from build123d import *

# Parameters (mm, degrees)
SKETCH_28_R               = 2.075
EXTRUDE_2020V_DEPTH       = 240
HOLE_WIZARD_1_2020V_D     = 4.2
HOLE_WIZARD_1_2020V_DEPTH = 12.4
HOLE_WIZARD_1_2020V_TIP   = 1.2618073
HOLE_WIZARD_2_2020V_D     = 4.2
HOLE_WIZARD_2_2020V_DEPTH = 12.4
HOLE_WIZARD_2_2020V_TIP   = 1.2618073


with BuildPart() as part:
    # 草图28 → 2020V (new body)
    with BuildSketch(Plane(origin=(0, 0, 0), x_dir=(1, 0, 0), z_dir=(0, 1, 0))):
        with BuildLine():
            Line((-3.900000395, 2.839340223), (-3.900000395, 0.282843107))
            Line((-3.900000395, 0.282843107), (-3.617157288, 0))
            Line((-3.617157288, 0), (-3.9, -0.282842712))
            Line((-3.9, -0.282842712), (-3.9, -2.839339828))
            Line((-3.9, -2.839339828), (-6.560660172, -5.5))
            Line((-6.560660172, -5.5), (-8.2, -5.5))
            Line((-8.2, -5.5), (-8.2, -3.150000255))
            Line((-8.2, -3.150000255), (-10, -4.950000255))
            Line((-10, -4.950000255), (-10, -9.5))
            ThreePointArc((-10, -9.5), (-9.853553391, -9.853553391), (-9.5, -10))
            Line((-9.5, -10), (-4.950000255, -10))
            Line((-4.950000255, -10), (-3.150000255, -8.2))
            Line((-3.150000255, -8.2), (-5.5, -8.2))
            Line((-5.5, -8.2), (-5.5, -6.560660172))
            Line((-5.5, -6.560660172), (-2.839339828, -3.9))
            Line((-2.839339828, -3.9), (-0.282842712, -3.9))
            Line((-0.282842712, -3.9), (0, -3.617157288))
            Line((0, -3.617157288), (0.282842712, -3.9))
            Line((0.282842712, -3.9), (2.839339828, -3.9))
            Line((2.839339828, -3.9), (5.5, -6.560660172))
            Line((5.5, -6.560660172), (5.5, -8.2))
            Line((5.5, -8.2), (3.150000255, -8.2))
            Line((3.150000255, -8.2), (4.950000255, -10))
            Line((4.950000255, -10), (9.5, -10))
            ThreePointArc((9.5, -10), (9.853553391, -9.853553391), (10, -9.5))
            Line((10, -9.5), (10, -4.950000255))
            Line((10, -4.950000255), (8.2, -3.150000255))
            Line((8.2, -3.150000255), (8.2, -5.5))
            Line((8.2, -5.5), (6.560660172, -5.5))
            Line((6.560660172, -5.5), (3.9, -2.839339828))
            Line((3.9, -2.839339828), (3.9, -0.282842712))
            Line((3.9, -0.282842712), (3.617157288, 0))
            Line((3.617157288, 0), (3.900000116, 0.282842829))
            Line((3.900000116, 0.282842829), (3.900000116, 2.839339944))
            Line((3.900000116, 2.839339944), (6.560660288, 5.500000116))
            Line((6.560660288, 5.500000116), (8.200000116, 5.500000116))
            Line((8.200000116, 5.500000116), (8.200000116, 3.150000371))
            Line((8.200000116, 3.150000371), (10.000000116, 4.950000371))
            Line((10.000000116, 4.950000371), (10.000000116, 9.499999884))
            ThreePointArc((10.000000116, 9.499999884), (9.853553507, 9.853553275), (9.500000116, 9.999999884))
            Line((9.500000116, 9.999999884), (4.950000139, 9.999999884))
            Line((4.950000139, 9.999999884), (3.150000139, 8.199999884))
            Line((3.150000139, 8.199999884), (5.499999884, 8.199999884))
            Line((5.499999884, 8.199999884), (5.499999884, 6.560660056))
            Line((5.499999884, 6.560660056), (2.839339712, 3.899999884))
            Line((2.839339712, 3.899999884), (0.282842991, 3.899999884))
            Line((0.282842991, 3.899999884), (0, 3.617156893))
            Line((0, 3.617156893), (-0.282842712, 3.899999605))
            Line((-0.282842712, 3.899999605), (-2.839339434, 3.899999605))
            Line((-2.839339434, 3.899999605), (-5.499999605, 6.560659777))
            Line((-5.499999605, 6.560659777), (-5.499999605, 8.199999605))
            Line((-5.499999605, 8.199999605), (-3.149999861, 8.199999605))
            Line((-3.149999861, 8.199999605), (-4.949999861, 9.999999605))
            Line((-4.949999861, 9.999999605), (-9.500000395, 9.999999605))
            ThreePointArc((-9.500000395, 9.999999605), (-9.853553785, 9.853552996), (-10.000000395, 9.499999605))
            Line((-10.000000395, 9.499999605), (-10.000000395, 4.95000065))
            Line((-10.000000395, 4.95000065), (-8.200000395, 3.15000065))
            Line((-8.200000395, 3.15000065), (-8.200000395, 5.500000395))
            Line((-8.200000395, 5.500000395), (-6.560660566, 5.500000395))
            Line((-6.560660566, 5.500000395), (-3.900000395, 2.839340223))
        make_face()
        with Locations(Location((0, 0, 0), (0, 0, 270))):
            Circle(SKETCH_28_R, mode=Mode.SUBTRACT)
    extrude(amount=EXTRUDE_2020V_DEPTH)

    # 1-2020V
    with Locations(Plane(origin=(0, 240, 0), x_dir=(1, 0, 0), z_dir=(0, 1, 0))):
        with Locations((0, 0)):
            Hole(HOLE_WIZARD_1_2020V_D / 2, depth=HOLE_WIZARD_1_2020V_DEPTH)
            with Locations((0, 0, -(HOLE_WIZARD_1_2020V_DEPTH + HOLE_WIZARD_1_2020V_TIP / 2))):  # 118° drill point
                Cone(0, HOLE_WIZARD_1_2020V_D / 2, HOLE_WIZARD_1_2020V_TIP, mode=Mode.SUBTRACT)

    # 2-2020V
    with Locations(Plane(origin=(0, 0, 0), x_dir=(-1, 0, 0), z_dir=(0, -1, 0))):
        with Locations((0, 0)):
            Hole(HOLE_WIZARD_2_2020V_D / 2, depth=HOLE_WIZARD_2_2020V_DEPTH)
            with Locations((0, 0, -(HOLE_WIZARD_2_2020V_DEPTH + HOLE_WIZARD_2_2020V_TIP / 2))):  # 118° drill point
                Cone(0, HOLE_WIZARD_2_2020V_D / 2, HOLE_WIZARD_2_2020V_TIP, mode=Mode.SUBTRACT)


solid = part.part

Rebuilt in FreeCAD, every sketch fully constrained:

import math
import FreeCAD as App
import Part
import Sketcher
Q = App.Units.Quantity

doc = App.newDocument("Part")
body = doc.addObject("PartDesign::Body", "Body")

# Sketch on XZ plane
sketch1 = body.newObject("Sketcher::SketchObject", "Sketch")
sketch1.AttachmentSupport = (doc.getObject("XZ_Plane"), [""])
sketch1.MapMode = "FlatFace"
sketch1.addGeometry(Part.LineSegment(App.Vector(-3.9, -2.83934, 0), App.Vector(-3.9, -0.282843, 0)), False)
sketch1.addGeometry(Part.LineSegment(App.Vector(-3.9, -0.282843, 0), App.Vector(-3.617157, 0, 0)), False)
sketch1.addGeometry(Part.LineSegment(App.Vector(-3.617157, 0, 0), App.Vector(-3.9, 0.282843, 0)), False)
sketch1.addGeometry(Part.LineSegment(App.Vector(-3.9, 0.282843, 0), App.Vector(-3.9, 2.83934, 0)), False)
sketch1.addGeometry(Part.LineSegment(App.Vector(-3.9, 2.83934, 0), App.Vector(-6.56066, 5.5, 0)), False)
sketch1.addGeometry(Part.LineSegment(App.Vector(-6.56066, 5.5, 0), App.Vector(-8.2, 5.5, 0)), False)
sketch1.addGeometry(Part.LineSegment(App.Vector(-8.2, 5.5, 0), App.Vector(-8.2, 3.15, 0)), False)
sketch1.addGeometry(Part.LineSegment(App.Vector(-8.2, 3.15, 0), App.Vector(-10, 4.95, 0)), False)
sketch1.addGeometry(Part.LineSegment(App.Vector(-10, 4.95, 0), App.Vector(-10, 9.5, 0)), False)
sketch1.addGeometry(Part.ArcOfCircle(Part.Circle(App.Vector(-9.5, 9.5, 0), App.Vector(0, 0, 1), 0.5), math.radians(90), math.radians(180)), False)
sketch1.addGeometry(Part.LineSegment(App.Vector(-9.5, 10, 0), App.Vector(-4.95, 10, 0)), False)
sketch1.addGeometry(Part.LineSegment(App.Vector(-4.95, 10, 0), App.Vector(-3.15, 8.2, 0)), False)
sketch1.addGeometry(Part.LineSegment(App.Vector(-3.15, 8.2, 0), App.Vector(-5.5, 8.2, 0)), False)
sketch1.addGeometry(Part.LineSegment(App.Vector(-5.5, 8.2, 0), App.Vector(-5.5, 6.56066, 0)), False)
sketch1.addGeometry(Part.LineSegment(App.Vector(-5.5, 6.56066, 0), App.Vector(-2.83934, 3.9, 0)), False)
sketch1.addGeometry(Part.LineSegment(App.Vector(-2.83934, 3.9, 0), App.Vector(-0.282843, 3.9, 0)), False)
sketch1.addGeometry(Part.LineSegment(App.Vector(-0.282843, 3.9, 0), App.Vector(0, 3.617157, 0)), False)
sketch1.addGeometry(Part.LineSegment(App.Vector(0, 3.617157, 0), App.Vector(0.282843, 3.9, 0)), False)
sketch1.addGeometry(Part.LineSegment(App.Vector(0.282843, 3.9, 0), App.Vector(2.83934, 3.9, 0)), False)
sketch1.addGeometry(Part.LineSegment(App.Vector(2.83934, 3.9, 0), App.Vector(5.5, 6.56066, 0)), False)
sketch1.addGeometry(Part.LineSegment(App.Vector(5.5, 6.56066, 0), App.Vector(5.5, 8.2, 0)), False)
sketch1.addGeometry(Part.LineSegment(App.Vector(5.5, 8.2, 0), App.Vector(3.15, 8.2, 0)), False)
sketch1.addGeometry(Part.LineSegment(App.Vector(3.15, 8.2, 0), App.Vector(4.95, 10, 0)), False)
sketch1.addGeometry(Part.LineSegment(App.Vector(4.95, 10, 0), App.Vector(9.5, 10, 0)), False)
sketch1.addGeometry(Part.ArcOfCircle(Part.Circle(App.Vector(9.5, 9.5, 0), App.Vector(0, 0, 1), 0.5), math.radians(0), math.radians(90)), False)
sketch1.addGeometry(Part.LineSegment(App.Vector(10, 9.5, 0), App.Vector(10, 4.95, 0)), False)
sketch1.addGeometry(Part.LineSegment(App.Vector(10, 4.95, 0), App.Vector(8.2, 3.15, 0)), False)
sketch1.addGeometry(Part.LineSegment(App.Vector(8.2, 3.15, 0), App.Vector(8.2, 5.5, 0)), False)
sketch1.addGeometry(Part.LineSegment(App.Vector(8.2, 5.5, 0), App.Vector(6.56066, 5.5, 0)), False)
sketch1.addGeometry(Part.LineSegment(App.Vector(6.56066, 5.5, 0), App.Vector(3.9, 2.83934, 0)), False)
sketch1.addGeometry(Part.LineSegment(App.Vector(3.9, 2.83934, 0), App.Vector(3.9, 0.282843, 0)), False)
sketch1.addGeometry(Part.LineSegment(App.Vector(3.9, 0.282843, 0), App.Vector(3.617157, 0, 0)), False)
sketch1.addGeometry(Part.LineSegment(App.Vector(3.617157, 0, 0), App.Vector(3.9, -0.282843, 0)), False)
sketch1.addGeometry(Part.LineSegment(App.Vector(3.9, -0.282843, 0), App.Vector(3.9, -2.83934, 0)), False)
sketch1.addGeometry(Part.LineSegment(App.Vector(3.9, -2.83934, 0), App.Vector(6.56066, -5.5, 0)), False)
sketch1.addGeometry(Part.LineSegment(App.Vector(6.56066, -5.5, 0), App.Vector(8.2, -5.5, 0)), False)
sketch1.addGeometry(Part.LineSegment(App.Vector(8.2, -5.5, 0), App.Vector(8.2, -3.15, 0)), False)
sketch1.addGeometry(Part.LineSegment(App.Vector(8.2, -3.15, 0), App.Vector(10, -4.95, 0)), False)
sketch1.addGeometry(Part.LineSegment(App.Vector(10, -4.95, 0), App.Vector(10, -9.5, 0)), False)
sketch1.addGeometry(Part.ArcOfCircle(Part.Circle(App.Vector(9.5, -9.5, 0), App.Vector(0, 0, 1), 0.5), math.radians(-90), math.radians(0)), False)
sketch1.addGeometry(Part.LineSegment(App.Vector(9.5, -10, 0), App.Vector(4.95, -10, 0)), False)
sketch1.addGeometry(Part.LineSegment(App.Vector(4.95, -10, 0), App.Vector(3.15, -8.2, 0)), False)
sketch1.addGeometry(Part.LineSegment(App.Vector(3.15, -8.2, 0), App.Vector(5.5, -8.2, 0)), False)
sketch1.addGeometry(Part.LineSegment(App.Vector(5.5, -8.2, 0), App.Vector(5.5, -6.56066, 0)), False)
sketch1.addGeometry(Part.LineSegment(App.Vector(5.5, -6.56066, 0), App.Vector(2.83934, -3.9, 0)), False)
sketch1.addGeometry(Part.LineSegment(App.Vector(2.83934, -3.9, 0), App.Vector(0.282843, -3.9, 0)), False)
sketch1.addGeometry(Part.LineSegment(App.Vector(0.282843, -3.9, 0), App.Vector(0, -3.617157, 0)), False)
sketch1.addGeometry(Part.LineSegment(App.Vector(0, -3.617157, 0), App.Vector(-0.282843, -3.9, 0)), False)
sketch1.addGeometry(Part.LineSegment(App.Vector(-0.282843, -3.9, 0), App.Vector(-2.839339, -3.9, 0)), False)
sketch1.addGeometry(Part.LineSegment(App.Vector(-2.839339, -3.9, 0), App.Vector(-5.5, -6.56066, 0)), False)
sketch1.addGeometry(Part.LineSegment(App.Vector(-5.5, -6.56066, 0), App.Vector(-5.5, -8.2, 0)), False)
sketch1.addGeometry(Part.LineSegment(App.Vector(-5.5, -8.2, 0), App.Vector(-3.15, -8.2, 0)), False)
sketch1.addGeometry(Part.LineSegment(App.Vector(-3.15, -8.2, 0), App.Vector(-4.95, -10, 0)), False)
sketch1.addGeometry(Part.LineSegment(App.Vector(-4.95, -10, 0), App.Vector(-9.5, -10, 0)), False)
sketch1.addGeometry(Part.ArcOfCircle(Part.Circle(App.Vector(-9.5, -9.5, 0), App.Vector(0, 0, 1), 0.5), math.radians(180), math.radians(270)), False)
sketch1.addGeometry(Part.LineSegment(App.Vector(-10, -9.5, 0), App.Vector(-10, -4.950001, 0)), False)
sketch1.addGeometry(Part.LineSegment(App.Vector(-10, -4.950001, 0), App.Vector(-8.2, -3.150001, 0)), False)
sketch1.addGeometry(Part.LineSegment(App.Vector(-8.2, -3.150001, 0), App.Vector(-8.2, -5.5, 0)), False)
sketch1.addGeometry(Part.LineSegment(App.Vector(-8.2, -5.5, 0), App.Vector(-6.560661, -5.5, 0)), False)
sketch1.addGeometry(Part.LineSegment(App.Vector(-6.560661, -5.5, 0), App.Vector(-3.9, -2.83934, 0)), False)
sketch1.addGeometry(Part.Circle(App.Vector(0, 0, 0), App.Vector(0, 0, 1), 2.075), False)
sketch1.addConstraint(Sketcher.Constraint("Coincident", 0, 2, 1, 1))
sketch1.addConstraint(Sketcher.Constraint("Coincident", 1, 2, 2, 1))
sketch1.addConstraint(Sketcher.Constraint("Coincident", 2, 2, 3, 1))
sketch1.addConstraint(Sketcher.Constraint("Coincident", 3, 2, 4, 1))
sketch1.addConstraint(Sketcher.Constraint("Coincident", 4, 2, 5, 1))
sketch1.addConstraint(Sketcher.Constraint("Coincident", 5, 2, 6, 1))
sketch1.addConstraint(Sketcher.Constraint("Coincident", 6, 2, 7, 1))
sketch1.addConstraint(Sketcher.Constraint("Coincident", 7, 2, 8, 1))
sketch1.addConstraint(Sketcher.Constraint("Tangent", 8, 2, 9, 2))
sketch1.addConstraint(Sketcher.Constraint("Tangent", 9, 1, 10, 1))
sketch1.addConstraint(Sketcher.Constraint("Coincident", 10, 2, 11, 1))
sketch1.addConstraint(Sketcher.Constraint("Coincident", 11, 2, 12, 1))
sketch1.addConstraint(Sketcher.Constraint("Coincident", 12, 2, 13, 1))
sketch1.addConstraint(Sketcher.Constraint("Coincident", 13, 2, 14, 1))
sketch1.addConstraint(Sketcher.Constraint("Coincident", 14, 2, 15, 1))
sketch1.addConstraint(Sketcher.Constraint("Coincident", 15, 2, 16, 1))
sketch1.addConstraint(Sketcher.Constraint("Coincident", 16, 2, 17, 1))
sketch1.addConstraint(Sketcher.Constraint("Coincident", 17, 2, 18, 1))
sketch1.addConstraint(Sketcher.Constraint("Coincident", 18, 2, 19, 1))
sketch1.addConstraint(Sketcher.Constraint("Coincident", 19, 2, 20, 1))
sketch1.addConstraint(Sketcher.Constraint("Coincident", 20, 2, 21, 1))
sketch1.addConstraint(Sketcher.Constraint("Coincident", 21, 2, 22, 1))
sketch1.addConstraint(Sketcher.Constraint("Coincident", 22, 2, 23, 1))
sketch1.addConstraint(Sketcher.Constraint("Tangent", 23, 2, 24, 2))
sketch1.addConstraint(Sketcher.Constraint("Tangent", 24, 1, 25, 1))
sketch1.addConstraint(Sketcher.Constraint("Coincident", 25, 2, 26, 1))
sketch1.addConstraint(Sketcher.Constraint("Coincident", 26, 2, 27, 1))
sketch1.addConstraint(Sketcher.Constraint("Coincident", 27, 2, 28, 1))
sketch1.addConstraint(Sketcher.Constraint("Coincident", 28, 2, 29, 1))
sketch1.addConstraint(Sketcher.Constraint("Coincident", 29, 2, 30, 1))
sketch1.addConstraint(Sketcher.Constraint("Coincident", 30, 2, 31, 1))
sketch1.addConstraint(Sketcher.Constraint("Coincident", 31, 2, 32, 1))
sketch1.addConstraint(Sketcher.Constraint("Coincident", 32, 2, 33, 1))
sketch1.addConstraint(Sketcher.Constraint("Coincident", 33, 2, 34, 1))
sketch1.addConstraint(Sketcher.Constraint("Coincident", 34, 2, 35, 1))
sketch1.addConstraint(Sketcher.Constraint("Coincident", 35, 2, 36, 1))
sketch1.addConstraint(Sketcher.Constraint("Coincident", 36, 2, 37, 1))
sketch1.addConstraint(Sketcher.Constraint("Coincident", 37, 2, 38, 1))
sketch1.addConstraint(Sketcher.Constraint("Tangent", 38, 2, 39, 2))
sketch1.addConstraint(Sketcher.Constraint("Tangent", 39, 1, 40, 1))
sketch1.addConstraint(Sketcher.Constraint("Coincident", 40, 2, 41, 1))
sketch1.addConstraint(Sketcher.Constraint("Coincident", 41, 2, 42, 1))
sketch1.addConstraint(Sketcher.Constraint("Coincident", 42, 2, 43, 1))
sketch1.addConstraint(Sketcher.Constraint("Coincident", 43, 2, 44, 1))
sketch1.addConstraint(Sketcher.Constraint("Coincident", 44, 2, 45, 1))
sketch1.addConstraint(Sketcher.Constraint("Coincident", 45, 2, 46, 1))
sketch1.addConstraint(Sketcher.Constraint("Coincident", 46, 2, 47, 1))
sketch1.addConstraint(Sketcher.Constraint("Coincident", 47, 2, 48, 1))
sketch1.addConstraint(Sketcher.Constraint("Coincident", 48, 2, 49, 1))
sketch1.addConstraint(Sketcher.Constraint("Coincident", 49, 2, 50, 1))
sketch1.addConstraint(Sketcher.Constraint("Coincident", 50, 2, 51, 1))
sketch1.addConstraint(Sketcher.Constraint("Coincident", 51, 2, 52, 1))
sketch1.addConstraint(Sketcher.Constraint("Coincident", 52, 2, 53, 1))
sketch1.addConstraint(Sketcher.Constraint("Tangent", 53, 2, 54, 2))
sketch1.addConstraint(Sketcher.Constraint("Tangent", 54, 1, 55, 1))
sketch1.addConstraint(Sketcher.Constraint("Coincident", 55, 2, 56, 1))
sketch1.addConstraint(Sketcher.Constraint("Coincident", 56, 2, 57, 1))
sketch1.addConstraint(Sketcher.Constraint("Coincident", 57, 2, 58, 1))
sketch1.addConstraint(Sketcher.Constraint("Coincident", 58, 2, 59, 1))
sketch1.addConstraint(Sketcher.Constraint("Coincident", 59, 2, 0, 1))
sketch1.addConstraint(Sketcher.Constraint("Vertical", 0))
sketch1.addConstraint(Sketcher.Constraint("Vertical", 3))
sketch1.addConstraint(Sketcher.Constraint("Horizontal", 5))
sketch1.addConstraint(Sketcher.Constraint("Vertical", 6))
sketch1.addConstraint(Sketcher.Constraint("Vertical", 8))
sketch1.addConstraint(Sketcher.Constraint("Horizontal", 10))
sketch1.addConstraint(Sketcher.Constraint("Horizontal", 12))
sketch1.addConstraint(Sketcher.Constraint("Vertical", 13))
sketch1.addConstraint(Sketcher.Constraint("Horizontal", 15))
sketch1.addConstraint(Sketcher.Constraint("Horizontal", 18))
sketch1.addConstraint(Sketcher.Constraint("Vertical", 20))
sketch1.addConstraint(Sketcher.Constraint("Horizontal", 21))
sketch1.addConstraint(Sketcher.Constraint("Horizontal", 23))
sketch1.addConstraint(Sketcher.Constraint("Vertical", 25))
sketch1.addConstraint(Sketcher.Constraint("Vertical", 27))
sketch1.addConstraint(Sketcher.Constraint("Horizontal", 28))
sketch1.addConstraint(Sketcher.Constraint("Vertical", 30))
sketch1.addConstraint(Sketcher.Constraint("Vertical", 33))
sketch1.addConstraint(Sketcher.Constraint("Horizontal", 35))
sketch1.addConstraint(Sketcher.Constraint("Vertical", 36))
sketch1.addConstraint(Sketcher.Constraint("Vertical", 38))
sketch1.addConstraint(Sketcher.Constraint("Horizontal", 40))
sketch1.addConstraint(Sketcher.Constraint("Horizontal", 42))
sketch1.addConstraint(Sketcher.Constraint("Vertical", 43))
sketch1.addConstraint(Sketcher.Constraint("Horizontal", 45))
sketch1.addConstraint(Sketcher.Constraint("Horizontal", 48))
sketch1.addConstraint(Sketcher.Constraint("Vertical", 50))
sketch1.addConstraint(Sketcher.Constraint("Horizontal", 51))
sketch1.addConstraint(Sketcher.Constraint("Horizontal", 53))
sketch1.addConstraint(Sketcher.Constraint("Vertical", 55))
sketch1.addConstraint(Sketcher.Constraint("Vertical", 57))
sketch1.addConstraint(Sketcher.Constraint("Horizontal", 58))
sketch1.addConstraint(Sketcher.Constraint("Coincident", 60, 3, -1, 1))
sketch1.addConstraint(Sketcher.Constraint("Equal", 9, 24))
sketch1.addConstraint(Sketcher.Constraint("Equal", 24, 39))
sketch1.addConstraint(Sketcher.Constraint("Equal", 39, 54))
sketch1.addConstraint(Sketcher.Constraint("Symmetric", 9, 3, 39, 3, -1, 1))
sketch1.addConstraint(Sketcher.Constraint("Symmetric", 24, 3, 54, 3, -1, 1))
sketch1.addConstraint(Sketcher.Constraint("Symmetric", 0, 2, 30, 2, -1, 1))
sketch1.addConstraint(Sketcher.Constraint("Symmetric", 1, 2, 31, 2, -1, 1))
sketch1.addConstraint(Sketcher.Constraint("Symmetric", 2, 2, 32, 2, -1, 1))
sketch1.addConstraint(Sketcher.Constraint("Symmetric", 4, 2, 34, 2, -1, 1))
sketch1.addConstraint(Sketcher.Constraint("Symmetric", 6, 2, 36, 2, -1, 1))
sketch1.addConstraint(Sketcher.Constraint("Symmetric", 11, 2, 41, 2, -1, 1))
sketch1.addConstraint(Sketcher.Constraint("Symmetric", 13, 2, 43, 2, -1, 1))
sketch1.addConstraint(Sketcher.Constraint("Symmetric", 14, 2, 44, 2, -1, 1))
sketch1.addConstraint(Sketcher.Constraint("Symmetric", 16, 2, 46, 2, -1, 1))
sketch1.addConstraint(Sketcher.Constraint("Symmetric", 17, 2, 47, 2, -1, 1))
sketch1.addConstraint(Sketcher.Constraint("Symmetric", 19, 2, 49, 2, -1, 1))
sketch1.addConstraint(Sketcher.Constraint("Symmetric", 21, 2, 51, 2, -1, 1))
sketch1.addConstraint(Sketcher.Constraint("Symmetric", 26, 2, 56, 2, -1, 1))
sketch1.addConstraint(Sketcher.Constraint("Symmetric", 28, 2, 58, 2, -1, 1))
sketch1.addConstraint(Sketcher.Constraint("Symmetric", 9, 3, 24, 3, -2))
sketch1.addConstraint(Sketcher.Constraint("Symmetric", 15, 2, 17, 2, -2))
sketch1.addConstraint(Sketcher.Constraint("Symmetric", 13, 2, 19, 2, -2))
sketch1.addConstraint(Sketcher.Constraint("Symmetric", 11, 2, 21, 2, -2))
sketch1.addConstraint(Sketcher.Constraint("Symmetric", 6, 2, 26, 2, -2))
sketch1.addConstraint(Sketcher.Constraint("Symmetric", 4, 2, 28, 2, -2))
sketch1.addConstraint(Sketcher.Constraint("Symmetric", 3, 2, 29, 2, -2))
sketch1.addConstraint(Sketcher.Constraint("PointOnObject", 1, 2, -1))
sketch1.addConstraint(Sketcher.Constraint("PointOnObject", 16, 2, -2))
sketch1.addConstraint(Sketcher.Constraint("Perpendicular", 1, 2))
sketch1.addConstraint(Sketcher.Constraint("Parallel", 2, 4))
sketch1.addConstraint(Sketcher.Constraint("Parallel", 4, 7))
sketch1.addConstraint(Sketcher.Constraint("Parallel", 7, 11))
sketch1.addConstraint(Sketcher.Constraint("Parallel", 11, 14))
sketch1.addConstraint(Sketcher.Constraint("Parallel", 14, 16))
sketch1.addConstraint(Sketcher.Constraint("Perpendicular", 16, 17))
sketch1.addConstraint(Sketcher.Constraint("Parallel", 17, 19))
sketch1.addConstraint(Sketcher.Constraint("Parallel", 19, 22))
sketch1.addConstraint(Sketcher.Constraint("Parallel", 22, 26))
sketch1.addConstraint(Sketcher.Constraint("Parallel", 32, 34))
sketch1.addConstraint(Sketcher.Constraint("Parallel", 34, 37))
sketch1.addConstraint(Sketcher.Constraint("Parallel", 37, 41))
sketch1.addConstraint(Sketcher.Constraint("Parallel", 44, 46))
sketch1.addConstraint(Sketcher.Constraint("Parallel", 47, 49))
sketch1.addConstraint(Sketcher.Constraint("Parallel", 49, 52))
sketch1.addConstraint(Sketcher.Constraint("Parallel", 52, 56))
sketch1.addConstraint(Sketcher.Constraint("Parallel", 56, 59))
sketch1.addConstraint(Sketcher.Constraint("Equal", 48, 0))
sketch1.addConstraint(Sketcher.Constraint("Equal", 51, 6))
sketch1.addConstraint(Sketcher.Constraint("Equal", 53, 8))
sketch1.addConstraint(Sketcher.Constraint("Equal", 58, 13))
sketch1.addConstraint(Sketcher.Constraint("Equal", 7, 11))
sketch1.addConstraint(Sketcher.Constraint("Equal", 4, 14))
sketch1.addConstraint(Sketcher.Constraint("Equal", 2, 16))
sketch1.addConstraint(Sketcher.Constraint("Radius", 9, Q("0.5 mm")))
sketch1.addConstraint(Sketcher.Constraint("Diameter", 60, Q("4.15 mm")))
sketch1.addConstraint(Sketcher.Constraint("DistanceX", 7, 2, -1, 1, Q("10 mm")))
sketch1.addConstraint(Sketcher.Constraint("Distance", 1, Q("0.400001 mm")))
sketch1.addConstraint(Sketcher.Constraint("DistanceX", 10, 1, 10, 2, Q("4.55 mm")))
sketch1.addConstraint(Sketcher.Constraint("DistanceX", 12, 2, 12, 1, Q("2.35 mm")))
sketch1.addConstraint(Sketcher.Constraint("DistanceX", 0, 2, -1, 1, Q("3.9 mm")))
sketch1.addConstraint(Sketcher.Constraint("DistanceY", -1, 1, 4, 2, Q("5.5 mm")))
sketch1.addConstraint(Sketcher.Constraint("DistanceX", 5, 2, 5, 1, Q("1.63934 mm")))
pad1 = body.newObject("PartDesign::Pad", "Pad")
pad1.Profile = sketch1
pad1.Length = 240
pad1.Reversed = True

# Sketch on XZ plane
sketch2 = body.newObject("Sketcher::SketchObject", "Sketch001")
sketch2.AttachmentSupport = (doc.getObject("XZ_Plane"), [""])
sketch2.MapMode = "FlatFace"
sketch2.AttachmentOffset = App.Placement(App.Vector(0, 0, -240), App.Rotation())
sketch2.addGeometry(Part.Circle(App.Vector(0, 0, 0), App.Vector(0, 0, 1), 2.1), False)
sketch2.addConstraint(Sketcher.Constraint("Coincident", 0, 3, -1, 1))
sketch2.addConstraint(Sketcher.Constraint("Diameter", 0, Q("4.2 mm")))
doc.recompute()
hole = body.newObject("PartDesign::Hole", "Hole")
hole.Profile = sketch2
hole.ThreadType = "None"
hole.Diameter = 4.2
hole.DepthType = "Dimension"
hole.Depth = 12.4
hole.DrillPoint = "Angled"
hole.DrillPointAngle = 118
hole.Reversed = True

# Sketch on XZ plane
sketch3 = body.newObject("Sketcher::SketchObject", "Sketch002")
sketch3.AttachmentSupport = (doc.getObject("XZ_Plane"), [""])
sketch3.MapMode = "FlatFace"
sketch3.addGeometry(Part.Circle(App.Vector(0, 0, 0), App.Vector(0, 0, 1), 2.1), False)
sketch3.addConstraint(Sketcher.Constraint("Coincident", 0, 3, -1, 1))
sketch3.addConstraint(Sketcher.Constraint("Diameter", 0, Q("4.2 mm")))
doc.recompute()
hole2 = body.newObject("PartDesign::Hole", "Hole001")
hole2.Profile = sketch3
hole2.ThreadType = "None"
hole2.Diameter = 4.2
hole2.DepthType = "Dimension"
hole2.Depth = 12.4
hole2.DrillPoint = "Angled"
hole2.DrillPointAngle = 118

doc.recompute()
